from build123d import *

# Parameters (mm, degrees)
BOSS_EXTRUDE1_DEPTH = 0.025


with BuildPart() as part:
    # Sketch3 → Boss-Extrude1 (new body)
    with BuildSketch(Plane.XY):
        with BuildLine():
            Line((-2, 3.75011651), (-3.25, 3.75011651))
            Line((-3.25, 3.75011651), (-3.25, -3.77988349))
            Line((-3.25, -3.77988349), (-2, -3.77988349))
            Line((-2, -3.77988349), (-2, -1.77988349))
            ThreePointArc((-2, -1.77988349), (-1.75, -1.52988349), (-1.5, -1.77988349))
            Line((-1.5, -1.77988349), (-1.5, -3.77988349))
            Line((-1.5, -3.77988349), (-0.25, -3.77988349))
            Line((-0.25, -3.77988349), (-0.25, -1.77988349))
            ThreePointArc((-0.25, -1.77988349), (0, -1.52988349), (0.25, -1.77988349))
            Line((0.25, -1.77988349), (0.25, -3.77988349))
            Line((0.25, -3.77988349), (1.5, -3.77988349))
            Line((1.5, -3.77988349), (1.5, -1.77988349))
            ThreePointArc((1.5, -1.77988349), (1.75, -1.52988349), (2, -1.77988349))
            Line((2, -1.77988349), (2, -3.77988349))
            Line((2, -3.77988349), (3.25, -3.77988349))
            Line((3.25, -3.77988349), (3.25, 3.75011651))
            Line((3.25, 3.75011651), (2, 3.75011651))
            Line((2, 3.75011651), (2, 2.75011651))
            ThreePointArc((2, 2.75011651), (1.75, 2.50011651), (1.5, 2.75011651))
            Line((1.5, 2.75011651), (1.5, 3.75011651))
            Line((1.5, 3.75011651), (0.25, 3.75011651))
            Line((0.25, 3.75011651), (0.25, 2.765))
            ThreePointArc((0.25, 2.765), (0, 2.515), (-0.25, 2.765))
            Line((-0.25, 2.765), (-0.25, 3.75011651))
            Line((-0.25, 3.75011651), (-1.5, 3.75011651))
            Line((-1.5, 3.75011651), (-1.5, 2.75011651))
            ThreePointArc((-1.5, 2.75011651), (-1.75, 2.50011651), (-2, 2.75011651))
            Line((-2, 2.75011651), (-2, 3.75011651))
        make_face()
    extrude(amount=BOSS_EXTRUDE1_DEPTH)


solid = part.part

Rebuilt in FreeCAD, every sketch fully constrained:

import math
import FreeCAD as App
import Part
import Sketcher

V = App.Vector
Q = App.Units.Quantity

doc = App.newDocument("Part")
body = doc.addObject("PartDesign::Body", "Body")

# Sketch on XY plane
sketch1 = body.newObject("Sketcher::SketchObject", "Sketch")
sketch1.AttachmentSupport = (doc.getObject("XY_Plane"), [""])
sketch1.MapMode = "FlatFace"
sketch1.addGeometry(Part.LineSegment(V(-2, 3.75, 0), V(-3.25, 3.75, 0)), False)
sketch1.addGeometry(Part.LineSegment(V(-3.25, 3.75, 0), V(-3.25, -3.78, 0)), False)
sketch1.addGeometry(Part.LineSegment(V(-3.25, -3.78, 0), V(-2, -3.78, 0)), False)
sketch1.addGeometry(Part.LineSegment(V(-2, -3.78, 0), V(-2, -1.78, 0)), False)
sketch1.addGeometry(Part.ArcOfCircle(Part.Circle(V(-1.75, -1.78, 0), V(0, 0, 1), 0.25), math.radians(0), math.radians(180)), False)
sketch1.addGeometry(Part.LineSegment(V(-1.5, -1.78, 0), V(-1.5, -3.78, 0)), False)
sketch1.addGeometry(Part.LineSegment(V(-1.5, -3.78, 0), V(-0.25, -3.78, 0)), False)
sketch1.addGeometry(Part.LineSegment(V(-0.25, -3.78, 0), V(-0.25, -1.78, 0)), False)
sketch1.addGeometry(Part.ArcOfCircle(Part.Circle(V(0, -1.78, 0), V(0, 0, 1), 0.25), math.radians(0), math.radians(180)), False)
sketch1.addGeometry(Part.LineSegment(V(0.25, -1.78, 0), V(0.25, -3.78, 0)), False)
sketch1.addGeometry(Part.LineSegment(V(0.25, -3.78, 0), V(1.5, -3.78, 0)), False)
sketch1.addGeometry(Part.LineSegment(V(1.5, -3.78, 0), V(1.5, -1.78, 0)), False)
sketch1.addGeometry(Part.ArcOfCircle(Part.Circle(V(1.75, -1.78, 0), V(0, 0, 1), 0.25), math.radians(0), math.radians(180)), False)
sketch1.addGeometry(Part.LineSegment(V(2, -1.78, 0), V(2, -3.78, 0)), False)
sketch1.addGeometry(Part.LineSegment(V(2, -3.78, 0), V(3.25, -3.78, 0)), False)
sketch1.addGeometry(Part.LineSegment(V(3.25, -3.78, 0), V(3.25, 3.75, 0)), False)
sketch1.addGeometry(Part.LineSegment(V(3.25, 3.75, 0), V(2, 3.75, 0)), False)
sketch1.addGeometry(Part.LineSegment(V(2, 3.75, 0), V(2, 2.75, 0)), False)
sketch1.addGeometry(Part.ArcOfCircle(Part.Circle(V(1.75, 2.75, 0), V(0, 0, 1), 0.25), math.radians(180), math.radians(360)), False)
sketch1.addGeometry(Part.LineSegment(V(1.5, 2.75, 0), V(1.5, 3.75, 0)), False)
sketch1.addGeometry(Part.LineSegment(V(1.5, 3.75, 0), V(0.25, 3.75, 0)), False)
sketch1.addGeometry(Part.LineSegment(V(0.25, 3.75, 0), V(0.25, 2.77, 0)), False)
sketch1.addGeometry(Part.ArcOfCircle(Part.Circle(V(0, 2.77, 0), V(0, 0, 1), 0.25), math.radians(180), math.radians(360)), False)
sketch1.addGeometry(Part.LineSegment(V(-0.25, 2.77, 0), V(-0.25, 3.75, 0)), False)
sketch1.addGeometry(Part.LineSegment(V(-0.25, 3.75, 0), V(-1.5, 3.75, 0)), False)
sketch1.addGeometry(Part.LineSegment(V(-1.5, 3.75, 0), V(-1.5, 2.75, 0)), False)
sketch1.addGeometry(Part.ArcOfCircle(Part.Circle(V(-1.75, 2.75, 0), V(0, 0, 1), 0.25), math.radians(180), math.radians(360)), False)
sketch1.addGeometry(Part.LineSegment(V(-2, 2.75, 0), V(-2, 3.75, 0)), False)
sketch1.addConstraint(Sketcher.Constraint("Coincident", 0, 2, 1, 1))
sketch1.addConstraint(Sketcher.Constraint("Coincident", 1, 2, 2, 1))
sketch1.addConstraint(Sketcher.Constraint("Coincident", 2, 2, 3, 1))
sketch1.addConstraint(Sketcher.Constraint("Tangent", 3, 2, 4, 2))
sketch1.addConstraint(Sketcher.Constraint("Tangent", 4, 1, 5, 1))
sketch1.addConstraint(Sketcher.Constraint("Coincident", 5, 2, 6, 1))
sketch1.addConstraint(Sketcher.Constraint("Coincident", 6, 2, 7, 1))
sketch1.addConstraint(Sketcher.Constraint("Tangent", 7, 2, 8, 2))
sketch1.addConstraint(Sketcher.Constraint("Tangent", 8, 1, 9, 1))
sketch1.addConstraint(Sketcher.Constraint("Coincident", 9, 2, 10, 1))
sketch1.addConstraint(Sketcher.Constraint("Coincident", 10, 2, 11, 1))
sketch1.addConstraint(Sketcher.Constraint("Tangent", 11, 2, 12, 2))
sketch1.addConstraint(Sketcher.Constraint("Tangent", 12, 1, 13, 1))
sketch1.addConstraint(Sketcher.Constraint("Coincident", 13, 2, 14, 1))
sketch1.addConstraint(Sketcher.Constraint("Coincident", 14, 2, 15, 1))
sketch1.addConstraint(Sketcher.Constraint("Coincident", 15, 2, 16, 1))
sketch1.addConstraint(Sketcher.Constraint("Coincident", 16, 2, 17, 1))
sketch1.addConstraint(Sketcher.Constraint("Tangent", 17, 2, 18, 2))
sketch1.addConstraint(Sketcher.Constraint("Tangent", 18, 1, 19, 1))
sketch1.addConstraint(Sketcher.Constraint("Coincident", 19, 2, 20, 1))
sketch1.addConstraint(Sketcher.Constraint("Coincident", 20, 2, 21, 1))
sketch1.addConstraint(Sketcher.Constraint("Tangent", 21, 2, 22, 2))
sketch1.addConstraint(Sketcher.Constraint("Tangent", 22, 1, 23, 1))
sketch1.addConstraint(Sketcher.Constraint("Coincident", 23, 2, 24, 1))
sketch1.addConstraint(Sketcher.Constraint("Coincident", 24, 2, 25, 1))
sketch1.addConstraint(Sketcher.Constraint("Tangent", 25, 2, 26, 2))
sketch1.addConstraint(Sketcher.Constraint("Tangent", 26, 1, 27, 1))
sketch1.addConstraint(Sketcher.Constraint("Coincident", 27, 2, 0, 1))
sketch1.addConstraint(Sketcher.Constraint("Horizontal", 0))
sketch1.addConstraint(Sketcher.Constraint("Vertical", 1))
sketch1.addConstraint(Sketcher.Constraint("Horizontal", 2))
sketch1.addConstraint(Sketcher.Constraint("Vertical", 3))
sketch1.addConstraint(Sketcher.Constraint("Vertical", 5))
sketch1.addConstraint(Sketcher.Constraint("Horizontal", 6))
sketch1.addConstraint(Sketcher.Constraint("Vertical", 7))
sketch1.addConstraint(Sketcher.Constraint("Vertical", 9))
sketch1.addConstraint(Sketcher.Constraint("Horizontal", 10))
sketch1.addConstraint(Sketcher.Constraint("Vertical", 11))
sketch1.addConstraint(Sketcher.Constraint("Vertical", 13))
sketch1.addConstraint(Sketcher.Constraint("Horizontal", 14))
sketch1.addConstraint(Sketcher.Constraint("Vertical", 15))
sketch1.addConstraint(Sketcher.Constraint("Horizontal", 16))
sketch1.addConstraint(Sketcher.Constraint("Vertical", 17))
sketch1.addConstraint(Sketcher.Constraint("Vertical", 19))
sketch1.addConstraint(Sketcher.Constraint("Horizontal", 20))
sketch1.addConstraint(Sketcher.Constraint("Vertical", 21))
sketch1.addConstraint(Sketcher.Constraint("Vertical", 23))
sketch1.addConstraint(Sketcher.Constraint("Horizontal", 24))
sketch1.addConstraint(Sketcher.Constraint("Vertical", 25))
sketch1.addConstraint(Sketcher.Constraint("Vertical", 27))
sketch1.addConstraint(Sketcher.Constraint("Equal", 4, 8))
sketch1.addConstraint(Sketcher.Constraint("Equal", 8, 12))
sketch1.addConstraint(Sketcher.Constraint("Equal", 12, 18))
sketch1.addConstraint(Sketcher.Constraint("Equal", 18, 22))
sketch1.addConstraint(Sketcher.Constraint("Equal", 22, 26))
sketch1.addConstraint(Sketcher.Constraint("Symmetric", 4, 3, 12, 3, -2))
sketch1.addConstraint(Sketcher.Constraint("Symmetric", 18, 3, 26, 3, -2))
sketch1.addConstraint(Sketcher.Constraint("Symmetric", 6, 2, 9, 2, -2))
sketch1.addConstraint(Sketcher.Constraint("Symmetric", 1, 2, 14, 2, -2))
sketch1.addConstraint(Sketcher.Constraint("Symmetric", 20, 2, 23, 2, -2))
sketch1.addConstraint(Sketcher.Constraint("Horizontal", 4, 3, 8, 3))
sketch1.addConstraint(Sketcher.Constraint("Horizontal", 2, 2, 5, 2))
sketch1.addConstraint(Sketcher.Constraint("Horizontal", 0, 2, 15, 2))
sketch1.addConstraint(Sketcher.Constraint("Horizontal", 16, 2, 19, 2))
sketch1.addConstraint(Sketcher.Constraint("Vertical", 12, 3, 18, 3))
sketch1.addConstraint(Sketcher.Constraint("Equal", 2, 6))
sketch1.addConstraint(Sketcher.Constraint("DistanceY", 3, 1, 3, 2, Q("2 mm")))
sketch1.addConstraint(Sketcher.Constraint("DistanceY", 17, 2, 17, 1, Q("1 mm")))
sketch1.addConstraint(Sketcher.Constraint("Radius", 4, Q("0.25 mm")))
sketch1.addConstraint(Sketcher.Constraint("DistanceX", 2, 2, -1, 1, Q("2 mm")))
sketch1.addConstraint(Sketcher.Constraint("DistanceY", 1, 2, 1, 1, Q("7.53 mm")))
sketch1.addConstraint(Sketcher.Constraint("DistanceY", -1, 1, 22, 3, Q("2.765 mm")))
sketch1.addConstraint(Sketcher.Constraint("DistanceY", 21, 2, 21, 1, Q("0.985117 mm")))
pad1 = body.newObject("PartDesign::Pad", "Pad")
pad1.Profile = sketch1
pad1.Length = 0.025

doc.recompute()
